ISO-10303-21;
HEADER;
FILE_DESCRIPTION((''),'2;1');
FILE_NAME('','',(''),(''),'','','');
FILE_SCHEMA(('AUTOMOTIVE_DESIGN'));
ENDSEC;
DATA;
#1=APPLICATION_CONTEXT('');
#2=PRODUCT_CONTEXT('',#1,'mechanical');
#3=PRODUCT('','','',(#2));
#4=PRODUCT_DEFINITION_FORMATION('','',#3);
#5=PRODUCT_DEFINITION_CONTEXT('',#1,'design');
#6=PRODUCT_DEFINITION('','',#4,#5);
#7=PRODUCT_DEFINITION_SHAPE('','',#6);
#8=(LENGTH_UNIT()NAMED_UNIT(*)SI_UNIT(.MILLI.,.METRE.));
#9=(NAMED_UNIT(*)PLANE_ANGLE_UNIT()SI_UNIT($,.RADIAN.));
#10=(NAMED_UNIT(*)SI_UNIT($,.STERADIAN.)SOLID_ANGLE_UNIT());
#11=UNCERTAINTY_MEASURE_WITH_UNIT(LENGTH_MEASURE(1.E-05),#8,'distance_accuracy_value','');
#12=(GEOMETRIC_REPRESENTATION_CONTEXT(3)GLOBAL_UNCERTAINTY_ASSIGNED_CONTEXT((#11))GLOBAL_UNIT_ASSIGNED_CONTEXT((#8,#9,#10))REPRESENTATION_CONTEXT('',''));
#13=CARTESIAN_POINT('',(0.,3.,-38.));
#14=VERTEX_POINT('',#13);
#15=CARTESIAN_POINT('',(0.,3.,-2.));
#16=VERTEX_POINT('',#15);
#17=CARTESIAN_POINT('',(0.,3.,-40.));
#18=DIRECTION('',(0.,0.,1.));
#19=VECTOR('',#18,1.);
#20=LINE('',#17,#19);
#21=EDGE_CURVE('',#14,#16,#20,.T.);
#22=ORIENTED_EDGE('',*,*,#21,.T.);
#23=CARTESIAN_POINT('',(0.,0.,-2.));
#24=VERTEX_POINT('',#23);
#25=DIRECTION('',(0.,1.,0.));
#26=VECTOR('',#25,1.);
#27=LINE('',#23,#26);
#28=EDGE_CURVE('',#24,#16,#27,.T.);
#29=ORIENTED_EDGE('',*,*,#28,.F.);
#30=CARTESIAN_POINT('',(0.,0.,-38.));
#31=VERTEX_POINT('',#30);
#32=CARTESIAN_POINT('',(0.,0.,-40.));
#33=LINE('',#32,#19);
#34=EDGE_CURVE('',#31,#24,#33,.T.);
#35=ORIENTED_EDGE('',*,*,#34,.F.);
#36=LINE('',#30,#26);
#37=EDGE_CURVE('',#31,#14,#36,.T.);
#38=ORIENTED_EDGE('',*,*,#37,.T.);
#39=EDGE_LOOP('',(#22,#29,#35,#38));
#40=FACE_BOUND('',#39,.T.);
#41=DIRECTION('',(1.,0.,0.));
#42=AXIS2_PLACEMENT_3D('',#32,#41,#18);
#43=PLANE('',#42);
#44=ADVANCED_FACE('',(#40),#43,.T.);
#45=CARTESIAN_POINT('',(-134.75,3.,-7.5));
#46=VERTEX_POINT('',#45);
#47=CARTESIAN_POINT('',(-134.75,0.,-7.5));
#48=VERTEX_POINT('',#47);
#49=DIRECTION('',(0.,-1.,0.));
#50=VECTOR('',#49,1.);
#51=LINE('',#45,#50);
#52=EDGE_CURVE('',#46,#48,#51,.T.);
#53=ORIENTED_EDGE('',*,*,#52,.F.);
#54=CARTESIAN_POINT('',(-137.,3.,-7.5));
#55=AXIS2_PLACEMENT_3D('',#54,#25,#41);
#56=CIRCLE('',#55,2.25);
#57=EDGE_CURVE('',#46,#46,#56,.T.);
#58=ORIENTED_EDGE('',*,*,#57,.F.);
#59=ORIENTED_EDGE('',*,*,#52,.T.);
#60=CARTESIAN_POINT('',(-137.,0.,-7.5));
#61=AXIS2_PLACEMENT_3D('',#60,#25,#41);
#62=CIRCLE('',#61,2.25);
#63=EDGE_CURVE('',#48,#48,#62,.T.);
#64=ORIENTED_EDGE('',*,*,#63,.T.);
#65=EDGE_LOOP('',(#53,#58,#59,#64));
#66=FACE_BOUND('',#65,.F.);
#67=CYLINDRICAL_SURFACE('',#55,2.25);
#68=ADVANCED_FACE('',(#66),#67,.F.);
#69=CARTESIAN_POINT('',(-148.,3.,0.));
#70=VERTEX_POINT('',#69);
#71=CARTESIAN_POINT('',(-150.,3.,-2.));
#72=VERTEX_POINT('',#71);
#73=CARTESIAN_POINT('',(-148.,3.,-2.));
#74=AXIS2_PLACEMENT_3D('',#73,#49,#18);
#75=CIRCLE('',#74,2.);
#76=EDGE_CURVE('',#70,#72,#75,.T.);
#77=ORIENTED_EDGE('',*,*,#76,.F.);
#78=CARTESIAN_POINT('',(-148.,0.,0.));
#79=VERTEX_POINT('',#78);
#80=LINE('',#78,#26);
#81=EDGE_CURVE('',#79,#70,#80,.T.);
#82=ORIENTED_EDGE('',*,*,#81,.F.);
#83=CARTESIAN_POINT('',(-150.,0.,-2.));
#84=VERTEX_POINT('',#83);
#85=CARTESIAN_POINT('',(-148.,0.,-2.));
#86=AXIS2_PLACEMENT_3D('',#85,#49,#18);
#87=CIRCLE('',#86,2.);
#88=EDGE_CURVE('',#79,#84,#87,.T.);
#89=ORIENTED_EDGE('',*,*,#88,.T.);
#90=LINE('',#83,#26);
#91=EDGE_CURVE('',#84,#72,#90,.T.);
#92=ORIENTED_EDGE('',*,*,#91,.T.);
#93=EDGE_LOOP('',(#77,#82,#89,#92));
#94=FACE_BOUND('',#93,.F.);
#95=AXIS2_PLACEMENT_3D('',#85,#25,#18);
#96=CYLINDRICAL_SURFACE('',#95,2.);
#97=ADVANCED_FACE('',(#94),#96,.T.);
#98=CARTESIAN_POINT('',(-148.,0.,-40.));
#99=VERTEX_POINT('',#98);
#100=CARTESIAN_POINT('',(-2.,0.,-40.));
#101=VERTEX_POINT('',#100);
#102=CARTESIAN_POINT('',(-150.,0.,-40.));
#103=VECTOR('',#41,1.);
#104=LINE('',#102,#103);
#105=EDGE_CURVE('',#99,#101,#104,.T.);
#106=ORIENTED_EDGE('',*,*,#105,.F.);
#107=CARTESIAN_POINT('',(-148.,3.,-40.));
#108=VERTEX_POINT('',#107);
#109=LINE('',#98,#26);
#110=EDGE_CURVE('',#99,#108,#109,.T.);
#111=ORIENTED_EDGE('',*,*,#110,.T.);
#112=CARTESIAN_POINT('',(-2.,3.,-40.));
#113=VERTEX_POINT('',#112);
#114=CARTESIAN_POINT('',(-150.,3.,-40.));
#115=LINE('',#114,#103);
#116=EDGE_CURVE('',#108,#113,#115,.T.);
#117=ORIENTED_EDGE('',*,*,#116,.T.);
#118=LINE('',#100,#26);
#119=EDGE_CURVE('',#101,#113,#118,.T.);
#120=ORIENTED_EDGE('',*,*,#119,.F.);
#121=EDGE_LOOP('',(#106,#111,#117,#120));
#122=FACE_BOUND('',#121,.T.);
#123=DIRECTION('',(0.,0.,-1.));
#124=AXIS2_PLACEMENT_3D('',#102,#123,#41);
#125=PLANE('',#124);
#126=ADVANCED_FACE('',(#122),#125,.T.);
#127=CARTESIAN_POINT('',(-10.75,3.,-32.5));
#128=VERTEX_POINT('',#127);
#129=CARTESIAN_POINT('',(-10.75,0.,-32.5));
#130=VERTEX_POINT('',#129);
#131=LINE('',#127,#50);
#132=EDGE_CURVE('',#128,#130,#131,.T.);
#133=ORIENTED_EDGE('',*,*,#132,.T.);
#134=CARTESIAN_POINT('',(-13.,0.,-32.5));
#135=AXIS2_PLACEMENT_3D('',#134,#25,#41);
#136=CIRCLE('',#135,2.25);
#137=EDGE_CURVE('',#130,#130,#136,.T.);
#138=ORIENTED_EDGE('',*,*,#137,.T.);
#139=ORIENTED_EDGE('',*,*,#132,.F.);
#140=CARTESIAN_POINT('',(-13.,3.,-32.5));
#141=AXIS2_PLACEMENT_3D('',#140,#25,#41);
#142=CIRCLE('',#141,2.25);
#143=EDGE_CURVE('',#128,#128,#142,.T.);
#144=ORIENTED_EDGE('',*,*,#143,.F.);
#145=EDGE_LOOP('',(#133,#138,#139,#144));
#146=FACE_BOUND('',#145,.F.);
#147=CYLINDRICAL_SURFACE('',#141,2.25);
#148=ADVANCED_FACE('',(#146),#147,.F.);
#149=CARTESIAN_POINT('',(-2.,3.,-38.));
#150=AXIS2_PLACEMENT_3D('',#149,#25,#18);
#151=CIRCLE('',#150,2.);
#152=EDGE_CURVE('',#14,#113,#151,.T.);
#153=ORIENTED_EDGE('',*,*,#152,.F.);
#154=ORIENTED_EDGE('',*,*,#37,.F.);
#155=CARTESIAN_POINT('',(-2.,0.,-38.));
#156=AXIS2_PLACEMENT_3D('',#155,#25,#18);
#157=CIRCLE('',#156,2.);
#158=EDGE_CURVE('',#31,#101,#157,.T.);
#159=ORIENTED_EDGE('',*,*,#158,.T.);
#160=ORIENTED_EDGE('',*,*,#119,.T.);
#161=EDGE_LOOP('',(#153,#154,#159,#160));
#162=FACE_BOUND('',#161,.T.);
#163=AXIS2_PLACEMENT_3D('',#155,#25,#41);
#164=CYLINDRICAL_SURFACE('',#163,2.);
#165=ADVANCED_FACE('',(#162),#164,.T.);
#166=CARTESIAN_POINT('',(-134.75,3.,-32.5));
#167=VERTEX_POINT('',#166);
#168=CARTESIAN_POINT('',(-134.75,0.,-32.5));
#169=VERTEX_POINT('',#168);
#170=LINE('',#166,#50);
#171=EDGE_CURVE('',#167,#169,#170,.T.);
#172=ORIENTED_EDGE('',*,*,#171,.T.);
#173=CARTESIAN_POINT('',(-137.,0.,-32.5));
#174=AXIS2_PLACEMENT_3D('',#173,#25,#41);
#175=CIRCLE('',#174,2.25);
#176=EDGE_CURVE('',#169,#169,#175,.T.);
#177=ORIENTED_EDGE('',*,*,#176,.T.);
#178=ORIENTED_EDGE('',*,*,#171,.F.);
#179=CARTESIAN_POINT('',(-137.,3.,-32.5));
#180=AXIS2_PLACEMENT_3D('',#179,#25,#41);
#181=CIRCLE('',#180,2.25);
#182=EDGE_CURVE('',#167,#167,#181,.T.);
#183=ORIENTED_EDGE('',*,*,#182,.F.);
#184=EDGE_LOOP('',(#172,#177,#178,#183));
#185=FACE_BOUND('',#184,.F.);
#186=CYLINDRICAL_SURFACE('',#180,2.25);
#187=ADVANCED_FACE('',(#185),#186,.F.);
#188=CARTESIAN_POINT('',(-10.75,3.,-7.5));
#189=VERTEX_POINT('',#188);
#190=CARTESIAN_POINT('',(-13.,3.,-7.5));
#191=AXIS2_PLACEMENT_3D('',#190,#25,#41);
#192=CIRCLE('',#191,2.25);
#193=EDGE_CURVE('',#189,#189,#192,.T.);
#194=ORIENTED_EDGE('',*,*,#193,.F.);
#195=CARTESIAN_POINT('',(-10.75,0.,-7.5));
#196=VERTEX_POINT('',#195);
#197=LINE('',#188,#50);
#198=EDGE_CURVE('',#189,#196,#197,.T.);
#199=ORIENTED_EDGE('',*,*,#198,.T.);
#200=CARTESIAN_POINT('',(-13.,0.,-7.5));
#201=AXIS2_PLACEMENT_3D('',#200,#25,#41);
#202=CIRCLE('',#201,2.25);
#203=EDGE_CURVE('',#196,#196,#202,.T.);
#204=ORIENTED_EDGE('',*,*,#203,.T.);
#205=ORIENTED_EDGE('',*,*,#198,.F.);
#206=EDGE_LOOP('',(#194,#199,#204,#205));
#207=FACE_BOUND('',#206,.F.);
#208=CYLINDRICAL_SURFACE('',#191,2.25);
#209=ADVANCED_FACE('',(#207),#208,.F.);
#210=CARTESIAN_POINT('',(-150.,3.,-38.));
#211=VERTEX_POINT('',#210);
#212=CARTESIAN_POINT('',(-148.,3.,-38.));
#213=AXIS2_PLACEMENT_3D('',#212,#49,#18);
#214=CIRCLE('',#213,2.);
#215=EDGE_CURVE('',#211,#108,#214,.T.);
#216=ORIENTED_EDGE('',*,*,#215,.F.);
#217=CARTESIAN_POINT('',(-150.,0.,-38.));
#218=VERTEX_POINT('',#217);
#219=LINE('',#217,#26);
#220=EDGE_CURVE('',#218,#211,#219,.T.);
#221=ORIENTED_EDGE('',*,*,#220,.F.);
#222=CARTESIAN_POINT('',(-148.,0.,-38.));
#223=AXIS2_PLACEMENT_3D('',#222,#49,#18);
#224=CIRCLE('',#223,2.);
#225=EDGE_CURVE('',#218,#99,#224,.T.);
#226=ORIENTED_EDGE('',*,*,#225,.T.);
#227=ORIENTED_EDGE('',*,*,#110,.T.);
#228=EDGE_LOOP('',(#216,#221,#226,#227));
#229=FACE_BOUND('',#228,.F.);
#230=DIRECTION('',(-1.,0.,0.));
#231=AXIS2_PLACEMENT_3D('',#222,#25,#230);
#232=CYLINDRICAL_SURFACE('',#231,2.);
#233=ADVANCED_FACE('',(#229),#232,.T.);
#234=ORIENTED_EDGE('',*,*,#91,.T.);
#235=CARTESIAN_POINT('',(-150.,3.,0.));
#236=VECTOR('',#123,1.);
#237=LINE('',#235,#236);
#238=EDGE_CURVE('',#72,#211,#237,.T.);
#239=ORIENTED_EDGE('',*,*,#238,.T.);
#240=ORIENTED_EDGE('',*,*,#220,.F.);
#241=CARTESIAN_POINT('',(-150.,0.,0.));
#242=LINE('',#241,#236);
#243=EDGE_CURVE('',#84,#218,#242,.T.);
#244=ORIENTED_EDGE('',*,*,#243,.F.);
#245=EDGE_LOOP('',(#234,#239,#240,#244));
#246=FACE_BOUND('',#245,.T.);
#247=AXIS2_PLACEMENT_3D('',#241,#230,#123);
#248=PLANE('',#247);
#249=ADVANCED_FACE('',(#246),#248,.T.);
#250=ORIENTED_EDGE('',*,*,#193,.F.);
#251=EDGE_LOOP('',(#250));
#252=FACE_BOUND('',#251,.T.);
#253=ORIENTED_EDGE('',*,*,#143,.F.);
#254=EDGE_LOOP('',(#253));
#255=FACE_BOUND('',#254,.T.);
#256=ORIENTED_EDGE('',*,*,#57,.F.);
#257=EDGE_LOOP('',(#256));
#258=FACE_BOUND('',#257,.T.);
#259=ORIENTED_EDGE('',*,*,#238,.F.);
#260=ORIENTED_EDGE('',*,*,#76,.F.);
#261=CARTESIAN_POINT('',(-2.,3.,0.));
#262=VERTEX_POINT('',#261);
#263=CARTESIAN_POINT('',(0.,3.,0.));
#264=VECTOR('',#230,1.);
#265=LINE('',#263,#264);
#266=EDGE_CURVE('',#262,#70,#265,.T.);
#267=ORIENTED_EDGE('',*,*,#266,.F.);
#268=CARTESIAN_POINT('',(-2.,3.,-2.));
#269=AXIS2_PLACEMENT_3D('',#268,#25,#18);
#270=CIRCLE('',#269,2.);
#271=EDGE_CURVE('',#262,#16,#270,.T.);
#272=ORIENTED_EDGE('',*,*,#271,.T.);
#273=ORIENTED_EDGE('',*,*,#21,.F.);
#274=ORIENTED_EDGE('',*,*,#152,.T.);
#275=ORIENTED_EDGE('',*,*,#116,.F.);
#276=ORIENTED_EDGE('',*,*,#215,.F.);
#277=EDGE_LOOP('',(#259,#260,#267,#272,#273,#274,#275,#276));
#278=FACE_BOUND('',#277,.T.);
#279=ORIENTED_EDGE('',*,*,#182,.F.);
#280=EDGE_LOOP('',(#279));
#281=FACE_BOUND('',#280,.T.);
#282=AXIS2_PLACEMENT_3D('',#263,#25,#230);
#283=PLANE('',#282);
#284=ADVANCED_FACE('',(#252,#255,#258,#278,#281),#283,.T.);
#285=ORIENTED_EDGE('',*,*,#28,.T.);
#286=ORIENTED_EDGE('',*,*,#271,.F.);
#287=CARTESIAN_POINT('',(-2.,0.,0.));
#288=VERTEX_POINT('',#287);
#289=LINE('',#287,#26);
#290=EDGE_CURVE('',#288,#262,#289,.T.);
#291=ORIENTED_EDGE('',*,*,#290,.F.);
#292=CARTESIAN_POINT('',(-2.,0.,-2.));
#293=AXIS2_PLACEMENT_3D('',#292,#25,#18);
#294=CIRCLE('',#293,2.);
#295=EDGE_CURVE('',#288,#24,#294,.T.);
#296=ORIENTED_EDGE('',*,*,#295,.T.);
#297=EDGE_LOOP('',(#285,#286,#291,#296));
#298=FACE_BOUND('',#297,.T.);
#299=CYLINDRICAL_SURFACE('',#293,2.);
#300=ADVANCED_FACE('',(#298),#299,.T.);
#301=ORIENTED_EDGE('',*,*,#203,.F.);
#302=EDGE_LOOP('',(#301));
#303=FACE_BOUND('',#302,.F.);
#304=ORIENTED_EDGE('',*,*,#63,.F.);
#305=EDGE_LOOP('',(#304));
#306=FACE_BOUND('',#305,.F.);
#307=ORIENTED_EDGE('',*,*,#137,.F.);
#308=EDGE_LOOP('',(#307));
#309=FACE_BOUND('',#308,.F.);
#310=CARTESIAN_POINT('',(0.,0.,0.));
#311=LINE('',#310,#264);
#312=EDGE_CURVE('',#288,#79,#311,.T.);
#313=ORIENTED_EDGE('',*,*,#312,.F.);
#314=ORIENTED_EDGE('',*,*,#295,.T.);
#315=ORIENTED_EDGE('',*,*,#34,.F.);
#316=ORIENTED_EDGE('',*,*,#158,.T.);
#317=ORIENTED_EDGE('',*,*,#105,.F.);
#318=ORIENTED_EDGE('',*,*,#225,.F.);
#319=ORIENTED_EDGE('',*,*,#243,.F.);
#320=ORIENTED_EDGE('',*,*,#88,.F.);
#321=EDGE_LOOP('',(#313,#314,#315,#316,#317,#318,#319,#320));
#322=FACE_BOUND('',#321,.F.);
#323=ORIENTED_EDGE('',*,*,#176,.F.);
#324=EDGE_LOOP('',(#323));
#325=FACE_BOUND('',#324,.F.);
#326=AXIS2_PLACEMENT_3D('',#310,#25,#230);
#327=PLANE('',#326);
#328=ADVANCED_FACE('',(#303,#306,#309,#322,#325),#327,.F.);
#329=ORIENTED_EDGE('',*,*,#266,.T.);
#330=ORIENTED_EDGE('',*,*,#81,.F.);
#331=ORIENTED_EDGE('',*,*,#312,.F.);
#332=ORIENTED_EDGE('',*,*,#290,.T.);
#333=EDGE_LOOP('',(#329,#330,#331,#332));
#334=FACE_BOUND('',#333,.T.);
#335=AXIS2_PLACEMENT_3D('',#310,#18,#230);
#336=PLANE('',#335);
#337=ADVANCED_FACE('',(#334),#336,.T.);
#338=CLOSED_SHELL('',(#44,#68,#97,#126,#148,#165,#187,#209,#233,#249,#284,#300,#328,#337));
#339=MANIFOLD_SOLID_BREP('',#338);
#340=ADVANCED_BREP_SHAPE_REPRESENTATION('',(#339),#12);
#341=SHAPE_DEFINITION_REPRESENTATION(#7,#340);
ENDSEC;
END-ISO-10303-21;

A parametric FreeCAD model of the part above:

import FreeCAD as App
import Part
import Sketcher
from FreeCAD import Vector


def edges_at(feature, points):
    """Names of the edges that pass closest to the given points."""
    edges = feature.Shape.Edges
    near = lambda p: min(range(len(edges)), key=lambda i: edges[i].distToShape(Part.Vertex(*p))[0])
    return sorted({f"Edge{near(p) + 1}" for p in points})

doc = App.newDocument("Part")
params = doc.addObject("Spreadsheet::Sheet", "Params")
for row, (alias, value) in enumerate([
    ("sketch1_width", "150 mm"),
    ("sketch1_height", "40 mm"),
    ("pad1_length", "3 mm"),
    ("sketch2_diameter", "4.5 mm"),
    ("pocket1_length", "3 mm"),
    ("fillet_radius", "2 mm"),
], start=1):
    params.set(f"A{row}", alias)
    params.set(f"B{row}", "=" + value)
    params.setAlias(f"B{row}", alias)

body = doc.addObject("PartDesign::Body", "Body")

# Sketch on XZ plane
sketch1 = body.newObject("Sketcher::SketchObject", "Sketch")
sketch1.AttachmentSupport = (doc.getObject("XZ_Plane"), [""])
sketch1.MapMode = "FlatFace"
sketch1.addGeometry(Part.LineSegment(Vector(-150, 0, 0), Vector(0, 0, 0)), False)
sketch1.addGeometry(Part.LineSegment(Vector(0, 0, 0), Vector(0, -40, 0)), False)
sketch1.addGeometry(Part.LineSegment(Vector(0, -40, 0), Vector(-150, -40, 0)), False)
sketch1.addGeometry(Part.LineSegment(Vector(-150, -40, 0), Vector(-150, 0, 0)), False)
sketch1.addConstraint(Sketcher.Constraint("Coincident", 0, 2, 1, 1))
sketch1.addConstraint(Sketcher.Constraint("Coincident", 1, 2, 2, 1))
sketch1.addConstraint(Sketcher.Constraint("Coincident", 2, 2, 3, 1))
sketch1.addConstraint(Sketcher.Constraint("Coincident", 3, 2, 0, 1))
sketch1.addConstraint(Sketcher.Constraint("Horizontal", 0))
sketch1.addConstraint(Sketcher.Constraint("Vertical", 1))
sketch1.addConstraint(Sketcher.Constraint("Horizontal", 2))
sketch1.addConstraint(Sketcher.Constraint("Vertical", 3))
sketch1.addConstraint(Sketcher.Constraint("Coincident", 0, 2, -1, 1))
sketch1.addConstraint(Sketcher.Constraint("DistanceX", 0, 1, 0, 2, 150.0))
sketch1.addConstraint(Sketcher.Constraint("DistanceY", 1, 2, 1, 1, 40.0))
sketch1.setExpression("Constraints[9]", "Params.sketch1_width")
sketch1.setExpression("Constraints[10]", "Params.sketch1_height")
pad1 = body.newObject("PartDesign::Pad", "Pad")
pad1.Profile = sketch1
pad1.setExpression("Length", "Params.pad1_length")
pad1.Reversed = True

# Sketch on XZ plane
sketch2 = body.newObject("Sketcher::SketchObject", "Sketch001")
sketch2.AttachmentSupport = (doc.getObject("XZ_Plane"), [""])
sketch2.MapMode = "FlatFace"
sketch2.AttachmentOffset = App.Placement(Vector(0, 0, -3), App.Rotation())
sketch2.addGeometry(Part.Circle(Vector(-13, -7.5, 0), Vector(0, 0, 1), 2.2), False)
sketch2.addGeometry(Part.Circle(Vector(-13, -32.5, 0), Vector(0, 0, 1), 2.2), False)
sketch2.addGeometry(Part.Circle(Vector(-137, -7.5, 0), Vector(0, 0, 1), 2.2), False)
sketch2.addGeometry(Part.Circle(Vector(-137, -32.5, 0), Vector(0, 0, 1), 2.2), False)
sketch2.addConstraint(Sketcher.Constraint("Equal", 0, 1))
sketch2.addConstraint(Sketcher.Constraint("Equal", 1, 2))
sketch2.addConstraint(Sketcher.Constraint("Equal", 2, 3))
sketch2.addConstraint(Sketcher.Constraint("Horizontal", 0, 3, 2, 3))
sketch2.addConstraint(Sketcher.Constraint("Horizontal", 1, 3, 3, 3))
sketch2.addConstraint(Sketcher.Constraint("Vertical", 0, 3, 1, 3))
sketch2.addConstraint(Sketcher.Constraint("Vertical", 2, 3, 3, 3))
sketch2.addConstraint(Sketcher.Constraint("Diameter", 0, 4.5))
sketch2.addConstraint(Sketcher.Constraint("DistanceX", 0, 3, -1, 1, 13.0))
sketch2.addConstraint(Sketcher.Constraint("DistanceY", 1, 3, 0, 3, 25.0))
sketch2.addConstraint(Sketcher.Constraint("DistanceX", 2, 3, -1, 1, 137.0))
sketch2.addConstraint(Sketcher.Constraint("DistanceY", 0, 3, -1, 1, 7.5))
sketch2.setExpression("Constraints[7]", "Params.sketch2_diameter")
pocket1 = body.newObject("PartDesign::Pocket", "Pocket")
pocket1.Profile = sketch2
pocket1.setExpression("Length", "Params.pocket1_length")
pocket1.Reversed = True
doc.recompute()

fillet = body.newObject("PartDesign::Fillet", "Fillet")
fillet.Base = (pocket1, edges_at(pocket1, [
    (-150, 1.5, 0),
    (-150, 1.5, -40),
    (0, 1.5, -40),
    (0, 1.5, 0),
]))
fillet.setExpression("Radius", "Params.fillet_radius")

doc.recompute()
